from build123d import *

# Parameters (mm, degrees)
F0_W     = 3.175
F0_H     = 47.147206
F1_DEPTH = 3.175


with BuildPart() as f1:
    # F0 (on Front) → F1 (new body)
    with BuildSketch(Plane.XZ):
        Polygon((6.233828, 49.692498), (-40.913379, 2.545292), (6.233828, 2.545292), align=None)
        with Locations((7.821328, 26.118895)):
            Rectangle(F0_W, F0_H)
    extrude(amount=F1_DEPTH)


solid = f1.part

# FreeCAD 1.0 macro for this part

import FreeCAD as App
import Part
import Sketcher
from FreeCAD import Vector
Q = App.Units.Quantity


def add_polygon(sketch, points):
    """Adds a closed chain of lines whose ends are joined by coincident constraints."""
    first, n = sketch.GeometryCount, len(points)
    for a, b in zip(points, points[1:] + points[:1]):
        sketch.addGeometry(Part.LineSegment(App.Vector(*a, 0), App.Vector(*b, 0)), False)
    for i in range(n):
        sketch.addConstraint(Sketcher.Constraint("Coincident", first + i, 2, first + (i + 1) % n, 1))

doc = App.newDocument("Part")
body = doc.addObject("PartDesign::Body", "Body")

# Sketch on XZ plane
sketch1 = body.newObject("Sketcher::SketchObject", "Sketch")
sketch1.AttachmentSupport = (doc.getObject("XZ_Plane"), [""])
sketch1.MapMode = "FlatFace"
add_polygon(sketch1, [(6.2, 49.7), (-40.9, 2.5), (9.4, 2.5), (9.4, 49.7)])  # lines 0-3
sketch1.addConstraint([
    Sketcher.Constraint("Horizontal", 1),
    Sketcher.Constraint("Vertical", 2),
    Sketcher.Constraint("Horizontal", 3),
    Sketcher.Constraint("Angle", 0, Q("-135.000001 deg")),
    Sketcher.Constraint("DistanceX", 3, 2, 3, 1, Q("0.125 in")),
    Sketcher.Constraint("Distance", 0, 66.676219),
    Sketcher.Constraint("DistanceX", 0, 2, -1, 1, 40.913379),
    Sketcher.Constraint("DistanceY", -1, 1, 0, 2, 2.545292),
])
pad1 = body.newObject("PartDesign::Pad", "Pad")
pad1.Profile = sketch1
pad1.Length = Q("0.125 in")

doc.recompute()
